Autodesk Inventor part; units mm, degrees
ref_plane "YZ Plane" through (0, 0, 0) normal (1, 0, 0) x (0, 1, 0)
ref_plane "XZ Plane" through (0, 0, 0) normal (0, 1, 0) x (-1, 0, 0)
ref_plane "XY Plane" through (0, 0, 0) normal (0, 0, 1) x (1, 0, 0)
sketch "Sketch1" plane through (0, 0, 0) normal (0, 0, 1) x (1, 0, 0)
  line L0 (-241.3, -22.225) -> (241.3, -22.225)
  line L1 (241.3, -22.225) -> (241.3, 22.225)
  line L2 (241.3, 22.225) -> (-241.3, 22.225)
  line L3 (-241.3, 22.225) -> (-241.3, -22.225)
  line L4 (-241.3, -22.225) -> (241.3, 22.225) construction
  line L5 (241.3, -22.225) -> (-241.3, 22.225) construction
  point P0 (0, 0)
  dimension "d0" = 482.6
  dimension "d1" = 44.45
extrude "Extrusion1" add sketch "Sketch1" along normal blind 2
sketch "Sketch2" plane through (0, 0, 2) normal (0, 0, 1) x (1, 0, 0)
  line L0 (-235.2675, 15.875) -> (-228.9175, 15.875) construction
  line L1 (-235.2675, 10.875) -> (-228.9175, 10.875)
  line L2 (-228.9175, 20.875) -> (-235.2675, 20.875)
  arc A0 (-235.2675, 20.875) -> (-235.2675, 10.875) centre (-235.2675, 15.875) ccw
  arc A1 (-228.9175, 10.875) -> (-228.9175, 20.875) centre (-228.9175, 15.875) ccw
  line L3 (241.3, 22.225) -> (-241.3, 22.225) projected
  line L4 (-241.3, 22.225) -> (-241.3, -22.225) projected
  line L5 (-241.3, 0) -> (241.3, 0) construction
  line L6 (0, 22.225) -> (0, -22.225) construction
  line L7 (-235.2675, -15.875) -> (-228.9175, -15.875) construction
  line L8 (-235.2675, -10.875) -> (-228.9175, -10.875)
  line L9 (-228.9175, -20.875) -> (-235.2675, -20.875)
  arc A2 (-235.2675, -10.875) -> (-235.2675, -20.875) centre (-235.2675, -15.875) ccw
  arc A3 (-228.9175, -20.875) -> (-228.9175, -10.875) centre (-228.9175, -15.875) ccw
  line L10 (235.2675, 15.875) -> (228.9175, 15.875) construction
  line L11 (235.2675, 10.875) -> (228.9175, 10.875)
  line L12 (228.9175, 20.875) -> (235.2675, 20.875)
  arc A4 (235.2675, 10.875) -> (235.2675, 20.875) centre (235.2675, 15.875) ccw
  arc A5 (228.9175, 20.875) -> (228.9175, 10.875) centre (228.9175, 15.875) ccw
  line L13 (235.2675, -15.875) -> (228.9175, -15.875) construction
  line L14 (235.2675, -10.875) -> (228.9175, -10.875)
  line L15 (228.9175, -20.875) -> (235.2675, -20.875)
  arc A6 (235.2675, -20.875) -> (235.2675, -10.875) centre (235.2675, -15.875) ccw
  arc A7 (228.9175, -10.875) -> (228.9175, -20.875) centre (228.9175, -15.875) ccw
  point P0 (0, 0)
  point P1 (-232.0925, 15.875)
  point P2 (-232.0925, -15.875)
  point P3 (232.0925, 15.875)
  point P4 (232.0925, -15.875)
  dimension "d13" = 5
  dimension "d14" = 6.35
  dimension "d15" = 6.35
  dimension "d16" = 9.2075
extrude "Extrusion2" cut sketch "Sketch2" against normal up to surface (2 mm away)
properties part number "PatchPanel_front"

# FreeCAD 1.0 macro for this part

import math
import FreeCAD as App
import Part
import Sketcher

V = App.Vector
Q = App.Units.Quantity


def add_polygon(sketch, points):
    """Adds a closed chain of lines whose ends are joined by coincident constraints."""
    first, n = sketch.GeometryCount, len(points)
    for a, b in zip(points, points[1:] + points[:1]):
        sketch.addGeometry(Part.LineSegment(App.Vector(*a, 0), App.Vector(*b, 0)), False)
    for i in range(n):
        sketch.addConstraint(Sketcher.Constraint("Coincident", first + i, 2, first + (i + 1) % n, 1))

doc = App.newDocument("Part")
params = doc.addObject("Spreadsheet::Sheet", "Params")
for row, (alias, value) in enumerate([
    ("sketch1_width", "19 in"),
    ("sketch1_height", "1.75 in"),
    ("pad1_length", "2 mm"),
    ("sketch2_width", "0.25 in"),
    ("pocket1_length", "2 mm"),
], start=1):
    params.set(f"A{row}", alias)
    params.set(f"B{row}", "=" + value)
    params.setAlias(f"B{row}", alias)

body = doc.addObject("PartDesign::Body", "Body")

sketch1 = body.newObject("Sketcher::SketchObject", "Sketch")
sketch1.AttachmentSupport = (doc.getObject("XY_Plane"), [""])
sketch1.MapMode = "FlatFace"
add_polygon(sketch1, [(-241, 22), (-241, -22), (241, -22), (241, 22)])
sketch1.addConstraint(Sketcher.Constraint("Vertical", 0))
sketch1.addConstraint(Sketcher.Constraint("Horizontal", 1))
sketch1.addConstraint(Sketcher.Constraint("Vertical", 2))
sketch1.addConstraint(Sketcher.Constraint("Horizontal", 3))
sketch1.addConstraint(Sketcher.Constraint("Symmetric", 0, 2, 2, 2, -1, 1))
sketch1.addConstraint(Sketcher.Constraint("DistanceX", 1, 1, 1, 2, Q("19 in")))
sketch1.addConstraint(Sketcher.Constraint("DistanceY", 0, 2, 0, 1, Q("1.75 in")))
sketch1.setExpression("Constraints[9]", "Params.sketch1_width")
sketch1.setExpression("Constraints[10]", "Params.sketch1_height")
pad1 = body.newObject("PartDesign::Pad", "Pad")
pad1.Profile = sketch1
pad1.setExpression("Length", "Params.pad1_length")

sketch2 = body.newObject("Sketcher::SketchObject", "Sketch001")
sketch2.AttachmentSupport = (doc.getObject("XY_Plane"), [""])
sketch2.MapMode = "FlatFace"
sketch2.AttachmentOffset = App.Placement(V(0, 0, 2), App.Rotation())
sketch2.addGeometry(Part.ArcOfCircle(Part.Circle(V(-235, 16, 0), V(0, 0, 1), 5), math.radians(90), math.radians(270)), False)
sketch2.addGeometry(Part.LineSegment(V(-235, 11, 0), V(-229, 11, 0)), False)
sketch2.addGeometry(Part.ArcOfCircle(Part.Circle(V(-229, 16, 0), V(0, 0, 1), 5), math.radians(-90), math.radians(90)), False)
sketch2.addGeometry(Part.LineSegment(V(-229, 21, 0), V(-235, 21, 0)), False)
sketch2.addGeometry(Part.LineSegment(V(-229, -11, 0), V(-235, -11, 0)), False)
sketch2.addGeometry(Part.ArcOfCircle(Part.Circle(V(-235, -16, 0), V(0, 0, 1), 5), math.radians(90), math.radians(270)), False)
sketch2.addGeometry(Part.LineSegment(V(-235, -21, 0), V(-229, -21, 0)), False)
sketch2.addGeometry(Part.ArcOfCircle(Part.Circle(V(-229, -16, 0), V(0, 0, 1), 5), math.radians(-90), math.radians(90)), False)
sketch2.addGeometry(Part.LineSegment(V(229, 11, 0), V(235, 11, 0)), False)
sketch2.addGeometry(Part.ArcOfCircle(Part.Circle(V(235, 16, 0), V(0, 0, 1), 5), math.radians(-90), math.radians(90)), False)
sketch2.addGeometry(Part.LineSegment(V(235, 21, 0), V(229, 21, 0)), False)
sketch2.addGeometry(Part.ArcOfCircle(Part.Circle(V(229, 16, 0), V(0, 0, 1), 5), math.radians(90), math.radians(270)), False)
sketch2.addGeometry(Part.ArcOfCircle(Part.Circle(V(235, -16, 0), V(0, 0, 1), 5), math.radians(-90), math.radians(90)), False)
sketch2.addGeometry(Part.LineSegment(V(235, -11, 0), V(229, -11, 0)), False)
sketch2.addGeometry(Part.ArcOfCircle(Part.Circle(V(229, -16, 0), V(0, 0, 1), 5), math.radians(90), math.radians(270)), False)
sketch2.addGeometry(Part.LineSegment(V(229, -21, 0), V(235, -21, 0)), False)
sketch2.addConstraint(Sketcher.Constraint("Tangent", 0, 2, 1, 1))
sketch2.addConstraint(Sketcher.Constraint("Tangent", 1, 2, 2, 1))
sketch2.addConstraint(Sketcher.Constraint("Tangent", 2, 2, 3, 1))
sketch2.addConstraint(Sketcher.Constraint("Tangent", 3, 2, 0, 1))
sketch2.addConstraint(Sketcher.Constraint("Tangent", 4, 2, 5, 1))
sketch2.addConstraint(Sketcher.Constraint("Tangent", 5, 2, 6, 1))
sketch2.addConstraint(Sketcher.Constraint("Tangent", 6, 2, 7, 1))
sketch2.addConstraint(Sketcher.Constraint("Tangent", 7, 2, 4, 1))
sketch2.addConstraint(Sketcher.Constraint("Tangent", 8, 2, 9, 1))
sketch2.addConstraint(Sketcher.Constraint("Tangent", 9, 2, 10, 1))
sketch2.addConstraint(Sketcher.Constraint("Tangent", 10, 2, 11, 1))
sketch2.addConstraint(Sketcher.Constraint("Tangent", 11, 2, 8, 1))
sketch2.addConstraint(Sketcher.Constraint("Tangent", 12, 2, 13, 1))
sketch2.addConstraint(Sketcher.Constraint("Tangent", 13, 2, 14, 1))
sketch2.addConstraint(Sketcher.Constraint("Tangent", 14, 2, 15, 1))
sketch2.addConstraint(Sketcher.Constraint("Tangent", 15, 2, 12, 1))
sketch2.addConstraint(Sketcher.Constraint("Horizontal", 1))
sketch2.addConstraint(Sketcher.Constraint("Horizontal", 3))
sketch2.addConstraint(Sketcher.Constraint("Horizontal", 4))
sketch2.addConstraint(Sketcher.Constraint("Horizontal", 6))
sketch2.addConstraint(Sketcher.Constraint("Horizontal", 8))
sketch2.addConstraint(Sketcher.Constraint("Horizontal", 10))
sketch2.addConstraint(Sketcher.Constraint("Horizontal", 13))
sketch2.addConstraint(Sketcher.Constraint("Horizontal", 15))
sketch2.addConstraint(Sketcher.Constraint("Equal", 2, 5))
sketch2.addConstraint(Sketcher.Constraint("Equal", 7, 9))
sketch2.addConstraint(Sketcher.Constraint("Equal", 11, 12))
sketch2.addConstraint(Sketcher.Constraint("Symmetric", 5, 3, 9, 3, -1, 1))
sketch2.addConstraint(Sketcher.Constraint("Symmetric", 0, 3, 12, 3, -1, 1))
sketch2.addConstraint(Sketcher.Constraint("Symmetric", 0, 3, 9, 3, -2))
sketch2.addConstraint(Sketcher.Constraint("Vertical", 2, 3, 7, 3))
sketch2.addConstraint(Sketcher.Constraint("Vertical", 11, 3, 14, 3))
sketch2.addConstraint(Sketcher.Constraint("Equal", 6, 8))
sketch2.addConstraint(Sketcher.Constraint("DistanceX", 1, 1, 1, 2, Q("0.25 in")))
sketch2.addConstraint(Sketcher.Constraint("Radius", 0, Q("5 mm")))
sketch2.addConstraint(Sketcher.Constraint("DistanceY", 5, 3, 0, 3, Q("1.25 in")))
sketch2.addConstraint(Sketcher.Constraint("DistanceX", 2, 3, 9, 3, Q("18.275 in")))
sketch2.setExpression("Constraints[33]", "Params.sketch2_width")
pocket1 = body.newObject("PartDesign::Pocket", "Pocket")
pocket1.Profile = sketch2
pocket1.setExpression("Length", "Params.pocket1_length")

doc.recompute()
